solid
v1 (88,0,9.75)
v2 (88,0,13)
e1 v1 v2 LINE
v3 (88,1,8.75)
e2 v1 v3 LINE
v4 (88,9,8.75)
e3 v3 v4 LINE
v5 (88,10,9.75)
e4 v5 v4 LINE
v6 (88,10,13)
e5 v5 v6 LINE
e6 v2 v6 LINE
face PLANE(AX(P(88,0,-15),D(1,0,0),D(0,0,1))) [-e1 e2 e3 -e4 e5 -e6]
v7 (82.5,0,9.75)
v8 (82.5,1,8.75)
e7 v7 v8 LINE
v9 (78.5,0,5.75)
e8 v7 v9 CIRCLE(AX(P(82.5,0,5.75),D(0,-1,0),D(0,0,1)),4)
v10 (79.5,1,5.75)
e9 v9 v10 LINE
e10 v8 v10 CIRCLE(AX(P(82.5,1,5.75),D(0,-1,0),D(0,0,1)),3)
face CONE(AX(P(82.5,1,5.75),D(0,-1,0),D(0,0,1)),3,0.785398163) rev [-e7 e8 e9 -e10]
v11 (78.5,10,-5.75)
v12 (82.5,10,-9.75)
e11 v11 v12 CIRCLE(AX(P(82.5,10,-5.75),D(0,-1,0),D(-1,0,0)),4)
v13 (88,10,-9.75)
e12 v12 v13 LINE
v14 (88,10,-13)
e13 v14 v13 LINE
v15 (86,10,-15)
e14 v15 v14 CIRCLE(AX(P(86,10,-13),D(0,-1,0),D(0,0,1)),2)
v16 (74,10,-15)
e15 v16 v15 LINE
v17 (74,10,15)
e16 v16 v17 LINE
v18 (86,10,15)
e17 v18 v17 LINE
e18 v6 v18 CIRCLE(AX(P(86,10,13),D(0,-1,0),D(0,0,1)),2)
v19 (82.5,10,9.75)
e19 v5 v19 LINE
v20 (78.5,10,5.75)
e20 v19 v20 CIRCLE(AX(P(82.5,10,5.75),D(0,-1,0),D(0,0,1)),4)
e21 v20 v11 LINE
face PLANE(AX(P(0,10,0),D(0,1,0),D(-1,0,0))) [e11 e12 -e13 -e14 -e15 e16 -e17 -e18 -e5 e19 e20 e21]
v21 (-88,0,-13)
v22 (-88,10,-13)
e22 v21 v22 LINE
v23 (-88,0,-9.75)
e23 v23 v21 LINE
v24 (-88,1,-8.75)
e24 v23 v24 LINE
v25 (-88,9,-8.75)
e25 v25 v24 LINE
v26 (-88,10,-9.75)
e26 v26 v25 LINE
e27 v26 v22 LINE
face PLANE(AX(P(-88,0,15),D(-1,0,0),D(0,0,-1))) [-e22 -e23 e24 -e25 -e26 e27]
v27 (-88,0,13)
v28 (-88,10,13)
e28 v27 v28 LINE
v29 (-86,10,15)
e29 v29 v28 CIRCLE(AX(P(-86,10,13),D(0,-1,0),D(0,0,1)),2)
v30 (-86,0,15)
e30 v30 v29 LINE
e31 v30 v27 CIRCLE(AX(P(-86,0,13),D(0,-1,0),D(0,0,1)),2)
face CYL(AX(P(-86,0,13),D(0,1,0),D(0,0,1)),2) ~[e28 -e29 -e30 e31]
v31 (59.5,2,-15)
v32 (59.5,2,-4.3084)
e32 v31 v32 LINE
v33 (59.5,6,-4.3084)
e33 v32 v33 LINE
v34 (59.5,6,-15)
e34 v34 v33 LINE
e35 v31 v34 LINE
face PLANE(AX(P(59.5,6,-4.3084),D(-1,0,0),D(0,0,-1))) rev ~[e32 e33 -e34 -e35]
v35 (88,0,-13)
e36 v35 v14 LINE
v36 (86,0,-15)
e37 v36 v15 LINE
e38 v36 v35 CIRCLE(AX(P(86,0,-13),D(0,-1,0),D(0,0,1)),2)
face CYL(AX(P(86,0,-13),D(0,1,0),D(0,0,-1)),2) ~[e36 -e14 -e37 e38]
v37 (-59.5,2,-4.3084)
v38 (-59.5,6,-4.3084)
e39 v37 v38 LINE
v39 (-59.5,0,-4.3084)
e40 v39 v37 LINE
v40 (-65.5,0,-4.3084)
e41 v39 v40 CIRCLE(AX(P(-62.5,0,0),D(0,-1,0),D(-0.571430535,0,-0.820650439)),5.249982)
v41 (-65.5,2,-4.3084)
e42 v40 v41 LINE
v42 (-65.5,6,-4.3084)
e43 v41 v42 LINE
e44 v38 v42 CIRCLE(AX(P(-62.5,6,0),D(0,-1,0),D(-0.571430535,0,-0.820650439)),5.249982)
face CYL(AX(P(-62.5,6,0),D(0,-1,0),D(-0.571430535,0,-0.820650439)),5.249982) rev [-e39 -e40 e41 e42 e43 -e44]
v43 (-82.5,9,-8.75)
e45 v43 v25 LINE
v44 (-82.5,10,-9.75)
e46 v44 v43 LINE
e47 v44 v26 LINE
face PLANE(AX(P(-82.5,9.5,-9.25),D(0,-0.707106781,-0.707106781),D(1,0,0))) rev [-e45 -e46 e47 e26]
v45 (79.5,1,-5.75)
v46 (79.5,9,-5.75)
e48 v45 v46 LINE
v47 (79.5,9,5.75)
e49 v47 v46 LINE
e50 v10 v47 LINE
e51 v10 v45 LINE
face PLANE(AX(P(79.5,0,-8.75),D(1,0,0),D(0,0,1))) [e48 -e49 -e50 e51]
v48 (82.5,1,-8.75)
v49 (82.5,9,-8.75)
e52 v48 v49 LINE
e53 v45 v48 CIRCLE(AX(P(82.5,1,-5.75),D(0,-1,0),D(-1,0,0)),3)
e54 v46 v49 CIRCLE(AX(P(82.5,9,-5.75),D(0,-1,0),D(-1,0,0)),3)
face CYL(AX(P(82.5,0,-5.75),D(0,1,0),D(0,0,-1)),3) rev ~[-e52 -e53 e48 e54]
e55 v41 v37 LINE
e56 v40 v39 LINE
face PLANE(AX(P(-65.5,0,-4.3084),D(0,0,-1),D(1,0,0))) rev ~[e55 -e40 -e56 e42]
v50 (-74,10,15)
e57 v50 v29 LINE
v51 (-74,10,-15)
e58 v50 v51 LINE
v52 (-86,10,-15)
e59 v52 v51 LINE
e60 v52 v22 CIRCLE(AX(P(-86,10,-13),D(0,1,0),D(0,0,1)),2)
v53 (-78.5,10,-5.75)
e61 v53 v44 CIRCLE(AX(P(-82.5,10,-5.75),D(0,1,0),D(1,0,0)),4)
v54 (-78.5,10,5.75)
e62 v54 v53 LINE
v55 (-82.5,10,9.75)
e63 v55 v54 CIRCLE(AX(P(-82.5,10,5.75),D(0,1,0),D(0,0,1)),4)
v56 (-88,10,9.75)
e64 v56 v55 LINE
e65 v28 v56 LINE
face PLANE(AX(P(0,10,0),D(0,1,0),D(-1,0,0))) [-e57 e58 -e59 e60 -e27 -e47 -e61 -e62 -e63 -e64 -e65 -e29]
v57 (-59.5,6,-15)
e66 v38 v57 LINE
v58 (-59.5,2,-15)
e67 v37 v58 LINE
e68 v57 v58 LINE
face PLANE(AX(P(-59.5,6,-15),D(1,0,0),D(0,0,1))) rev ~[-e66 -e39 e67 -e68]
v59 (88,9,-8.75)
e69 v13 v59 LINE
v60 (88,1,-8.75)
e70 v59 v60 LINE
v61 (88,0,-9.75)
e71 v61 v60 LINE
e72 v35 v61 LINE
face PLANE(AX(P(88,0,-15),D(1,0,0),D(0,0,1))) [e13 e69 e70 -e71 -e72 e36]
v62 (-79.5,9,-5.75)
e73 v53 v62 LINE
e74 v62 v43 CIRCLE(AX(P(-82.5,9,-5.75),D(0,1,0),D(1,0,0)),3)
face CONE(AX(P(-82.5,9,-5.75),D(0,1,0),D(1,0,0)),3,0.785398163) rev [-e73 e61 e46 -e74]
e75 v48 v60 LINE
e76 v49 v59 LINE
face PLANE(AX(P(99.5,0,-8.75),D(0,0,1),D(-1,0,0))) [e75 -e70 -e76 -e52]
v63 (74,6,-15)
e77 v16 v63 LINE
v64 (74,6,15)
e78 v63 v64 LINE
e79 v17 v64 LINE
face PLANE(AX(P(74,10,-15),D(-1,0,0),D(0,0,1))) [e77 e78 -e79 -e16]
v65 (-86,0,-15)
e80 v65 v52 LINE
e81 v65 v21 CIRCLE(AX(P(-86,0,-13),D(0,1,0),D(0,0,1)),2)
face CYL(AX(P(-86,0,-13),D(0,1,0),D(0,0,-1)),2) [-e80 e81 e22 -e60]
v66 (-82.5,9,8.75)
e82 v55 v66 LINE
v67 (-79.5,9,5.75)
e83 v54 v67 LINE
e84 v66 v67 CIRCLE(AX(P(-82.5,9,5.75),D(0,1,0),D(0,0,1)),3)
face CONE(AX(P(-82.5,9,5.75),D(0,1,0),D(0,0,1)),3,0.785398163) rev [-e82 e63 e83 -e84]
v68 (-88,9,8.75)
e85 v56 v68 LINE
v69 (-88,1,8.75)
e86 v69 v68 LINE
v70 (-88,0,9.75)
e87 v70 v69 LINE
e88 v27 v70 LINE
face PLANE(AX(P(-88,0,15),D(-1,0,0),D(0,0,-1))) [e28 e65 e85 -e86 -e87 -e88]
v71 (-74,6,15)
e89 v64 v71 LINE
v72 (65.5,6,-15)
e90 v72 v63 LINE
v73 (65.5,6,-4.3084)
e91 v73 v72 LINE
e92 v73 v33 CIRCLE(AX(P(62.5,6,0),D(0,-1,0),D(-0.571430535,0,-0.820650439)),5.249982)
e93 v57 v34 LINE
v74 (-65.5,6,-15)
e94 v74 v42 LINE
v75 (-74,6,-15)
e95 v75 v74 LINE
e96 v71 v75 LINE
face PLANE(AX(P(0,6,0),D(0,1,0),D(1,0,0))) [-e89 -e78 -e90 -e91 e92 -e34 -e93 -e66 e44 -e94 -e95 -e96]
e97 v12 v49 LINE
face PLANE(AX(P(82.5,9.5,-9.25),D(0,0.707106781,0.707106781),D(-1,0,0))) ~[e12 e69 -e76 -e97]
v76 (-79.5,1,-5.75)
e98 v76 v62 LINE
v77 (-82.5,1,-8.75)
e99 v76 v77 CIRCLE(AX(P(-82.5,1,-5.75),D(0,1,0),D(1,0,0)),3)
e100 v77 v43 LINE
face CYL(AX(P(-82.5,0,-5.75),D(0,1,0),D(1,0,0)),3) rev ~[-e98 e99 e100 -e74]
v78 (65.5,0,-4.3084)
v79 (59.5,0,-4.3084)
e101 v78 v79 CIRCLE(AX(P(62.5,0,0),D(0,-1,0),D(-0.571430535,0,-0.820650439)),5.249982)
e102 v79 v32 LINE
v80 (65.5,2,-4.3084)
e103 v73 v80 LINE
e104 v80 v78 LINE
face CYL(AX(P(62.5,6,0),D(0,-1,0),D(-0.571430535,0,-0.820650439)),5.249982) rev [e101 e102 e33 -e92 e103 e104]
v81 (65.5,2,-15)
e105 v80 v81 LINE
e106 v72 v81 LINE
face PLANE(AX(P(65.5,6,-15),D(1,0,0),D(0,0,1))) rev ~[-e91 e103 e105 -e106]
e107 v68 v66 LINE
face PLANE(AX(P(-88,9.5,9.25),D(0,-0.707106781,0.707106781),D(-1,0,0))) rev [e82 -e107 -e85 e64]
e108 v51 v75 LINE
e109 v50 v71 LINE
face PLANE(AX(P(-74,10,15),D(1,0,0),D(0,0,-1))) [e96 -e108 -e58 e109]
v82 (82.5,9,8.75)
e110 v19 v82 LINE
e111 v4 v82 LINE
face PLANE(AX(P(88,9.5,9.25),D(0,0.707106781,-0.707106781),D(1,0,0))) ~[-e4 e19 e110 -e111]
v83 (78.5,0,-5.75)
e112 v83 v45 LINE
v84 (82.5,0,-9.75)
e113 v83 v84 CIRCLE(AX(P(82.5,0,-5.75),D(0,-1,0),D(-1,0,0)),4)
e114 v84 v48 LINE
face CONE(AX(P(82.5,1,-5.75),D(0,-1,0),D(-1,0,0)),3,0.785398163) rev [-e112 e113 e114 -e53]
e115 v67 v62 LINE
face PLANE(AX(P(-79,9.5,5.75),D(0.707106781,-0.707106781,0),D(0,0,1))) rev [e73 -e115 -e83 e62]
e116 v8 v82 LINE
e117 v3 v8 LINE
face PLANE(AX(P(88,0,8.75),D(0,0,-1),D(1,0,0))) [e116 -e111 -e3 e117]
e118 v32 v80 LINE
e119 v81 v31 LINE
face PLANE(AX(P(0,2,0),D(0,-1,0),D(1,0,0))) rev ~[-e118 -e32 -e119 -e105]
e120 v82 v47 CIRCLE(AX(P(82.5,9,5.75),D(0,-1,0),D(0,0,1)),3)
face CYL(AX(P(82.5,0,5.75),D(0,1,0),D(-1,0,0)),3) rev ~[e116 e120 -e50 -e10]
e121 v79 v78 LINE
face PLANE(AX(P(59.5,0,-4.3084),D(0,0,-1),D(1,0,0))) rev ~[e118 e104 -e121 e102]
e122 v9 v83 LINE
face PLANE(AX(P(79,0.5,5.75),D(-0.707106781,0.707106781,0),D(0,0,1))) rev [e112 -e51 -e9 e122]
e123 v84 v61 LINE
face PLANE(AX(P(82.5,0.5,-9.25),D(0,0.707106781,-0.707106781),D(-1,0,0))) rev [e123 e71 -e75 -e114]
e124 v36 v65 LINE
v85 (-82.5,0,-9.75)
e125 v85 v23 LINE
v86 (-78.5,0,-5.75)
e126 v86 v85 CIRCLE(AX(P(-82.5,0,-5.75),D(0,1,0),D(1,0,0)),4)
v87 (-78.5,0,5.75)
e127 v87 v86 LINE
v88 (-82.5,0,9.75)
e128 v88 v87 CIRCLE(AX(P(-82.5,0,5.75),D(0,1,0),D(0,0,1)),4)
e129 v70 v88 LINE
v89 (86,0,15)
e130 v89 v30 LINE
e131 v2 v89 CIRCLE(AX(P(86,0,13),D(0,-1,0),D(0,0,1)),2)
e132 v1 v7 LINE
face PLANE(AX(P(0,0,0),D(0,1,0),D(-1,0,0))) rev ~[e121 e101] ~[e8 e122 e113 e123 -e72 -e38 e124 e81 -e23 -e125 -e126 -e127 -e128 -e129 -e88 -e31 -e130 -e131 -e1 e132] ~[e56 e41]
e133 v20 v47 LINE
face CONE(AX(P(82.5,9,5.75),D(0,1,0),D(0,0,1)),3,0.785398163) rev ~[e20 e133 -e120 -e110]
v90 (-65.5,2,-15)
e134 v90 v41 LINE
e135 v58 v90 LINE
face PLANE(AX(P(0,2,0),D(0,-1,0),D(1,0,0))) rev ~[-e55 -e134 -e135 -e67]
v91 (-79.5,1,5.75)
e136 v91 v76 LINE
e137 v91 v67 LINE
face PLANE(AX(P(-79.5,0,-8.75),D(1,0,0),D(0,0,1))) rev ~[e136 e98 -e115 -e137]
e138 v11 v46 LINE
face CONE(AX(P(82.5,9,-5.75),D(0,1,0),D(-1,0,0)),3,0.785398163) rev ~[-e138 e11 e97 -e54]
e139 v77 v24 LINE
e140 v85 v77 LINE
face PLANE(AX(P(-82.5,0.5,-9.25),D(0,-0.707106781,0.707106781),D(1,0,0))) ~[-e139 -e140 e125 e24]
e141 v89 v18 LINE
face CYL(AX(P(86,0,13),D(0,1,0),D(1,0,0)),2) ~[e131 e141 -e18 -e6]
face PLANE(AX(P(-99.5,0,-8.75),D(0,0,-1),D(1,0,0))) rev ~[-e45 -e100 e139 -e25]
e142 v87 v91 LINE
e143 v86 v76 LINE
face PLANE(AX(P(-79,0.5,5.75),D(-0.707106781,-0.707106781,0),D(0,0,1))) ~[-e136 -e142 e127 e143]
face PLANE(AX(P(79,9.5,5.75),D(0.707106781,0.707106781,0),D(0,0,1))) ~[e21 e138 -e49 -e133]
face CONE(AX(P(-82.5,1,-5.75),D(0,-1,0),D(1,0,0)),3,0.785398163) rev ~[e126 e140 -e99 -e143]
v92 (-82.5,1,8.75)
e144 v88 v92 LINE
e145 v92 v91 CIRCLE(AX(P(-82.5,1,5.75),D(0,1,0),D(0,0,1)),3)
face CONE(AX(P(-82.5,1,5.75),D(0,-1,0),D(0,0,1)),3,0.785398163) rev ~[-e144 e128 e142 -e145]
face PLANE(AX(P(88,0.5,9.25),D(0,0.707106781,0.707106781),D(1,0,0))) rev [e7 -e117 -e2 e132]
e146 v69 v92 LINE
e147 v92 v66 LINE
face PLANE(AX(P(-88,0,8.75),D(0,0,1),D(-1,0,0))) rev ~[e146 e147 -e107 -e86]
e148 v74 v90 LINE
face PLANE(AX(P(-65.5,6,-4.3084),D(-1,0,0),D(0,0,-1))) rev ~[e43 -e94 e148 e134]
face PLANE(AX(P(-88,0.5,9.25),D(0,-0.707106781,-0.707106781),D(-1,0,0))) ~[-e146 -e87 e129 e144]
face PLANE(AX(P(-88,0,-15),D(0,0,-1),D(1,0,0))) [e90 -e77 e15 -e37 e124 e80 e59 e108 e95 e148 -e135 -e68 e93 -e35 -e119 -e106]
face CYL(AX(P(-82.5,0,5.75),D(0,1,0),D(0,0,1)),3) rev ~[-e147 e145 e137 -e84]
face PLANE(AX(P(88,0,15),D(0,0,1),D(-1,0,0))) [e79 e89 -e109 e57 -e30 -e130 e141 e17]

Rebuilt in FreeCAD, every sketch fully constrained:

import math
import FreeCAD as App
import Part
import Sketcher
from FreeCAD import Vector
Q = App.Units.Quantity


def edges_at(feature, points):
    """Names of the edges that pass closest to the given points."""
    edges = feature.Shape.Edges
    near = lambda p: min(range(len(edges)), key=lambda i: edges[i].distToShape(Part.Vertex(*p))[0])
    return sorted({f"Edge{near(p) + 1}" for p in points})


def add_polygon(sketch, points):
    """Adds a closed chain of lines whose ends are joined by coincident constraints."""
    first, n = sketch.GeometryCount, len(points)
    for a, b in zip(points, points[1:] + points[:1]):
        sketch.addGeometry(Part.LineSegment(App.Vector(*a, 0), App.Vector(*b, 0)), False)
    for i in range(n):
        sketch.addConstraint(Sketcher.Constraint("Coincident", first + i, 2, first + (i + 1) % n, 1))

doc = App.newDocument("Part")
body = doc.addObject("PartDesign::Body", "Body")

# Sketch on XZ plane
sketch1 = body.newObject("Sketcher::SketchObject", "Sketch")
sketch1.AttachmentSupport = (doc.getObject("XZ_Plane"), [""])
sketch1.MapMode = "FlatFace"
add_polygon(sketch1, [(88, -15), (-88, -15), (-88, 15), (88, 15)])  # lines 0-3
sketch1.addConstraint([
    Sketcher.Constraint("Horizontal", 0),
    Sketcher.Constraint("Vertical", 1),
    Sketcher.Constraint("Horizontal", 2),
    Sketcher.Constraint("Vertical", 3),
    Sketcher.Constraint("Symmetric", 0, 2, 2, 2, -1, 1),
    Sketcher.Constraint("DistanceX", 0, 2, 0, 1, Q("176 mm")),
    Sketcher.Constraint("DistanceY", 1, 1, 1, 2, Q("30 mm")),
])
pad1 = body.newObject("PartDesign::Pad", "Pad")
pad1.Profile = sketch1
pad1.Length = 10
pad1.Reversed = True

# Sketch on XZ plane
sketch2 = body.newObject("Sketcher::SketchObject", "Sketch001")
sketch2.AttachmentSupport = (doc.getObject("XZ_Plane"), [""])
sketch2.MapMode = "FlatFace"
sketch2.AttachmentOffset = App.Placement(Vector(0, 0, -10), App.Rotation())
add_polygon(sketch2, [(74, -15), (-74, -15), (-74, 15), (74, 15)])  # lines 0-3
sketch2.addConstraint([
    Sketcher.Constraint("Horizontal", 0),
    Sketcher.Constraint("Vertical", 1),
    Sketcher.Constraint("Horizontal", 2),
    Sketcher.Constraint("Vertical", 3),
    Sketcher.Constraint("Symmetric", 0, 2, 2, 2, -1, 1),
    Sketcher.Constraint("DistanceX", 0, 2, 0, 1, Q("148 mm")),
    Sketcher.Constraint("DistanceY", 1, 1, 1, 2, Q("30 mm")),
])
pocket1 = body.newObject("PartDesign::Pocket", "Pocket")
pocket1.Profile = sketch2
pocket1.Length = 4
pocket1.Reversed = True

# Sketch on XZ plane
sketch3 = body.newObject("Sketcher::SketchObject", "Sketch002")
sketch3.AttachmentSupport = (doc.getObject("XZ_Plane"), [""])
sketch3.MapMode = "FlatFace"
add_polygon(sketch3, [(100, -9), (100, 9), (80, 9), (80, -9)])  # lines 0-3
add_polygon(sketch3, [(-100, 9), (-100, -9), (-80, -9), (-80, 9)])  # lines 4-7
sketch3.addConstraint([
    Sketcher.Constraint("Vertical", 0),
    Sketcher.Constraint("Horizontal", 1),
    Sketcher.Constraint("Vertical", 2),
    Sketcher.Constraint("Horizontal", 3),
    Sketcher.Constraint("Vertical", 4),
    Sketcher.Constraint("Horizontal", 5),
    Sketcher.Constraint("Vertical", 6),
    Sketcher.Constraint("Horizontal", 7),
    Sketcher.Constraint("Symmetric", 0, 2, 4, 2, -1, 1),
    Sketcher.Constraint("Symmetric", 2, 2, 6, 2, -1, 1),
    Sketcher.Constraint("Horizontal", 3, 2, 4, 2),
    Sketcher.Constraint("DistanceX", 1, 2, 1, 1, Q("20 mm")),
    Sketcher.Constraint("DistanceY", 0, 1, 0, 2, Q("17.5 mm")),
    Sketcher.Constraint("DistanceX", 4, 2, 2, 2, Q("179 mm")),
])
pocket2 = body.newObject("PartDesign::Pocket", "Pocket001")
pocket2.Profile = sketch3
pocket2.Type = "ThroughAll"
pocket2.Midplane = True

# Sketch on XZ plane
sketch4 = body.newObject("Sketcher::SketchObject", "Sketch003")
sketch4.AttachmentSupport = (doc.getObject("XZ_Plane"), [""])
sketch4.MapMode = "FlatFace"
sketch4.AttachmentOffset = App.Placement(Vector(0, 0, -6), App.Rotation())
sketch4.addGeometry([
    Part.LineSegment(Vector(-66, -15, 0), Vector(-66, -4, 0)),  # 0
    Part.ArcOfCircle(Part.Circle(Vector(-62, 0, 0), Vector(0, 0, 1), 5), math.radians(-55), math.radians(235)),  # 1
    Part.LineSegment(Vector(-60, -4, 0), Vector(-60, -15, 0)),  # 2
    Part.LineSegment(Vector(-60, -15, 0), Vector(-66, -15, 0)),  # 3
    Part.LineSegment(Vector(66, -15, 0), Vector(60, -15, 0)),  # 4
    Part.LineSegment(Vector(60, -15, 0), Vector(60, -4, 0)),  # 5
    Part.ArcOfCircle(Part.Circle(Vector(62, 0, 0), Vector(0, 0, 1), 5), math.radians(-55), math.radians(235)),  # 6
    Part.LineSegment(Vector(66, -4, 0), Vector(66, -15, 0)),  # 7
], False)
sketch4.addConstraint([
    Sketcher.Constraint("Coincident", 0, 2, 1, 2),
    Sketcher.Constraint("Coincident", 1, 1, 2, 1),
    Sketcher.Constraint("Coincident", 2, 2, 3, 1),
    Sketcher.Constraint("Coincident", 3, 2, 0, 1),
    Sketcher.Constraint("Coincident", 4, 2, 5, 1),
    Sketcher.Constraint("Coincident", 5, 2, 6, 2),
    Sketcher.Constraint("Coincident", 6, 1, 7, 1),
    Sketcher.Constraint("Coincident", 7, 2, 4, 1),
    Sketcher.Constraint("Vertical", 0),
    Sketcher.Constraint("Vertical", 2),
    Sketcher.Constraint("Horizontal", 3),
    Sketcher.Constraint("Horizontal", 4),
    Sketcher.Constraint("Vertical", 5),
    Sketcher.Constraint("Vertical", 7),
    Sketcher.Constraint("Equal", 1, 6),
    Sketcher.Constraint("Symmetric", 1, 3, 6, 3, -1, 1),
    Sketcher.Constraint("Symmetric", 2, 2, 4, 2, -2),
    Sketcher.Constraint("Symmetric", 0, 2, 6, 1, -2),
    Sketcher.Constraint("Horizontal", 0, 2, 1, 1),
    Sketcher.Constraint("DistanceX", 3, 2, 3, 1, Q("6 mm")),
    Sketcher.Constraint("Radius", 1, Q("5.25 mm")),
    Sketcher.Constraint("DistanceX", 1, 3, -1, 1, Q("62.5 mm")),
    Sketcher.Constraint("DistanceY", 2, 2, -1, 1, Q("15 mm")),
])
pocket3 = body.newObject("PartDesign::Pocket", "Pocket002")
pocket3.Profile = sketch4
pocket3.Type = "ThroughAll"
pocket3.Midplane = True

# Sketch on XZ plane
sketch5 = body.newObject("Sketcher::SketchObject", "Sketch004")
sketch5.AttachmentSupport = (doc.getObject("XZ_Plane"), [""])
sketch5.MapMode = "FlatFace"
add_polygon(sketch5, [(60, -4), (60, -15), (66, -15), (66, -4)])  # lines 0-3
add_polygon(sketch5, [(-60, -4), (-66, -4), (-66, -15), (-60, -15)])  # lines 4-7
sketch5.addConstraint([
    Sketcher.Constraint("Vertical", 0),
    Sketcher.Constraint("Horizontal", 1),
    Sketcher.Constraint("Vertical", 2),
    Sketcher.Constraint("Horizontal", 3),
    Sketcher.Constraint("Horizontal", 4),
    Sketcher.Constraint("Vertical", 5),
    Sketcher.Constraint("Horizontal", 6),
    Sketcher.Constraint("Vertical", 7),
    Sketcher.Constraint("Symmetric", 2, 2, 4, 2, -2),
    Sketcher.Constraint("Symmetric", 0, 2, 6, 2, -2),
    Sketcher.Constraint("DistanceX", 1, 1, 1, 2, Q("6 mm")),
    Sketcher.Constraint("DistanceY", 0, 2, -1, 1, Q("15 mm")),
    Sketcher.Constraint("DistanceX", 4, 2, 3, 2, Q("125 mm")),
    Sketcher.Constraint("DistanceY", 0, 2, 0, 1, Q("10.6916 mm")),
])
pad2 = body.newObject("PartDesign::Pad", "Pad001")
pad2.Profile = sketch5
pad2.Length = 2
pad2.Reversed = True
doc.recompute()

fillet = body.newObject("PartDesign::Fillet", "Fillet")
fillet.Base = (pad2, edges_at(pad2, [
    (-79.5, 5, -8.75),
    (-79.5, 5, 8.75),
    (79.5, 5, -8.75),
    (79.5, 5, 8.75),
]))
fillet.Radius = 3
doc.recompute()

fillet2 = body.newObject("PartDesign::Fillet", "Fillet001")
fillet2.Base = (fillet, edges_at(fillet, [
    (-88, 5, 15),
    (-88, 5, -15),
    (88, 5, -15),
    (88, 5, 15),
]))
fillet2.Radius = 2
doc.recompute()

chamfer = body.newObject("PartDesign::Chamfer", "Chamfer")
chamfer.Base = (fillet2, edges_at(fillet2, [
    (-85.25, 10, -8.75),
    (-80.379, 10, -7.871),
    (-79.5, 10, 0),
    (-80.379, 10, 7.871),
    (-85.25, 10, 8.75),
    (-85.25, 0, -8.75),
    (-80.379, 0, -7.871),
    (-79.5, 0, 0),
    (-80.379, 0, 7.871),
    (-85.25, 0, 8.75),
    (85.25, 10, -8.75),
    (80.379, 10, -7.871),
    (79.5, 10, 0),
    (80.379, 10, 7.871),
    (85.25, 10, 8.75),
    (85.25, 0, 8.75),
    (80.379, 0, 7.871),
    (79.5, 0, 0),
    (80.379, 0, -7.871),
    (85.25, 0, -8.75),
]))
chamfer.Size = 1

doc.recompute()
